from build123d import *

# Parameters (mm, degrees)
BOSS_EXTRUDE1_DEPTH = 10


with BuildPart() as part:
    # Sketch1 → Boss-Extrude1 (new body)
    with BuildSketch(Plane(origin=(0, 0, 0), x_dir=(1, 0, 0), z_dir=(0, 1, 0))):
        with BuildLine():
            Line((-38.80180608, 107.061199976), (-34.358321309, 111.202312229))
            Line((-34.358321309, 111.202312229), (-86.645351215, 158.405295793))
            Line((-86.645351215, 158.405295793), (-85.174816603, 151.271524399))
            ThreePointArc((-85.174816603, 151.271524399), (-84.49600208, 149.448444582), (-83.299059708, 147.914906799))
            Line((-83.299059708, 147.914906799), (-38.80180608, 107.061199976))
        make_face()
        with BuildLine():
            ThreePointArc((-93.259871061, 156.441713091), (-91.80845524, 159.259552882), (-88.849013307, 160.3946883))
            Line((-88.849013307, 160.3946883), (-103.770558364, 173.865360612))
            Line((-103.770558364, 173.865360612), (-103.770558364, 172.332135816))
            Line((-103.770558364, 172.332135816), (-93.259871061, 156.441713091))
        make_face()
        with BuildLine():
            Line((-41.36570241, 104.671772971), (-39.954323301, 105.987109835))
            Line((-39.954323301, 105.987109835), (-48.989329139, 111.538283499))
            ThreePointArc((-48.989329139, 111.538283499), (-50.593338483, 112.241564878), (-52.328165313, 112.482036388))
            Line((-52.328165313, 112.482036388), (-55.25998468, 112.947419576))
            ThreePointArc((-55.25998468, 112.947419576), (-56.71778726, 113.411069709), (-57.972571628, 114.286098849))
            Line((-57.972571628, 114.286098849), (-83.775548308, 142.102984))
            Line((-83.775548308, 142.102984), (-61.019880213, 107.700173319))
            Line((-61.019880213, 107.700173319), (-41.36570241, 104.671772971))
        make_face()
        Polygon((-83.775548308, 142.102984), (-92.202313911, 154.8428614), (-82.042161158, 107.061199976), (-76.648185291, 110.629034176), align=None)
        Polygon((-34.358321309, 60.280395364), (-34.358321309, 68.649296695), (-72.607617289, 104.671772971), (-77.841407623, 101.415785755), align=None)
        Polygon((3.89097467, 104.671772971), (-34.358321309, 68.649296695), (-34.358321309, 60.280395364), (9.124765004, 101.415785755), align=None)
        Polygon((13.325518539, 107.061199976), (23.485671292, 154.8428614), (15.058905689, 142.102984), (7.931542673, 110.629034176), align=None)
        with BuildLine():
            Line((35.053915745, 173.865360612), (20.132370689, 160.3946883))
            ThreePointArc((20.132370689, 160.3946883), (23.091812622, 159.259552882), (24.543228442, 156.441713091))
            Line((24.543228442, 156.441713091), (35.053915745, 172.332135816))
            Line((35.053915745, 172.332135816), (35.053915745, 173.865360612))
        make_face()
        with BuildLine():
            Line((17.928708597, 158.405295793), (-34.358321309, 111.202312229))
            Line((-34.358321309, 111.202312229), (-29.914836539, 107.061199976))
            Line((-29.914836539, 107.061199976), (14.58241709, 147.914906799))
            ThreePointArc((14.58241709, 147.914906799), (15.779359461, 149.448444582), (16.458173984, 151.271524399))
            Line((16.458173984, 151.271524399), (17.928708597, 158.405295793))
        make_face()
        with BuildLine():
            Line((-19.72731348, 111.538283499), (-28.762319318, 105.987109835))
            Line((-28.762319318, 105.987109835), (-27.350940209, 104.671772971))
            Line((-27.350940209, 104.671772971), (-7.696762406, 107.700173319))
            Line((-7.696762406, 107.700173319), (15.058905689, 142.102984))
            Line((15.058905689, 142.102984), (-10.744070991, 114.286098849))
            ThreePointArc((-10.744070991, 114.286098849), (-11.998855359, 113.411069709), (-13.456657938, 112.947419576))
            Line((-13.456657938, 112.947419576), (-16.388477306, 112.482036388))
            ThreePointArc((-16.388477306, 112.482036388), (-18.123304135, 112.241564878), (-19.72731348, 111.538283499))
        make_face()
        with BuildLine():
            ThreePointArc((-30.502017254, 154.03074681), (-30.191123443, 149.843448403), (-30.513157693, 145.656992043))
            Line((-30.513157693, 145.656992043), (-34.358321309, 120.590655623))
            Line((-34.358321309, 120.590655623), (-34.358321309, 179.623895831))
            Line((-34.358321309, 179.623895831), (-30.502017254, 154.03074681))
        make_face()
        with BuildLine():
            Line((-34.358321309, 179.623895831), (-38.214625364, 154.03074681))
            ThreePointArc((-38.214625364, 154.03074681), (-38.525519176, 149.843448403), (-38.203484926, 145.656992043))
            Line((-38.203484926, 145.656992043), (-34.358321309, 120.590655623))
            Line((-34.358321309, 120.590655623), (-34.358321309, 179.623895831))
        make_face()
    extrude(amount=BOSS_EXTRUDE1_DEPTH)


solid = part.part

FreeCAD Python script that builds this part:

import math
import FreeCAD as App
import Part
import Sketcher

V = App.Vector
Q = App.Units.Quantity


def add_polygon(sketch, points):
    """Adds a closed chain of lines whose ends are joined by coincident constraints."""
    first, n = sketch.GeometryCount, len(points)
    for a, b in zip(points, points[1:] + points[:1]):
        sketch.addGeometry(Part.LineSegment(App.Vector(*a, 0), App.Vector(*b, 0)), False)
    for i in range(n):
        sketch.addConstraint(Sketcher.Constraint("Coincident", first + i, 2, first + (i + 1) % n, 1))

doc = App.newDocument("Part")
body = doc.addObject("PartDesign::Body", "Body")
body.AllowCompound = True

sketch1 = doc.addObject("Sketcher::SketchObject", "Sketch")
body.addObject(sketch1)
sketch1.AttachmentSupport = (doc.XZ_Plane, [""])
sketch1.MapMode = "FlatFace"
sketch1.addGeometry(Part.LineSegment(V(-38.801806, -107.0612, 0), V(-34.358321, -111.202312, 0)), False)
sketch1.addGeometry(Part.LineSegment(V(-34.358321, -111.202312, 0), V(-86.645351, -158.405296, 0)), False)
sketch1.addGeometry(Part.LineSegment(V(-86.645351, -158.405296, 0), V(-85.174817, -151.271524, 0)), False)
sketch1.addGeometry(Part.ArcOfCircle(Part.Circle(V(-78.930128, -152.558786, 0), V(0, 0, 1), 6.375985), math.radians(133.252661), math.radians(168.352367)), False)
sketch1.addGeometry(Part.LineSegment(V(-83.29906, -147.914907, 0), V(-38.801806, -107.0612, 0)), False)
sketch1.addGeometry(Part.ArcOfCircle(Part.Circle(V(-88.840974, -155.948341, 0), V(0, 0, 1), 4.446354), math.radians(-173.629287), math.radians(-90.103592)), False)
sketch1.addGeometry(Part.LineSegment(V(-88.849013, -160.394688, 0), V(-103.770558, -173.865361, 0)), False)
sketch1.addGeometry(Part.LineSegment(V(-103.770558, -173.865361, 0), V(-103.770558, -172.332136, 0)), False)
sketch1.addGeometry(Part.LineSegment(V(-103.770558, -172.332136, 0), V(-93.259871, -156.441713, 0)), False)
sketch1.addGeometry(Part.LineSegment(V(-41.365702, -104.671773, 0), V(-39.954323, -105.98711, 0)), False)
sketch1.addGeometry(Part.LineSegment(V(-39.954323, -105.98711, 0), V(-48.989329, -111.538283, 0)), False)
sketch1.addGeometry(Part.ArcOfCircle(Part.Circle(V(-52.328165, -106.104045, 0), V(0, 0, 1), 6.377992), math.radians(-90), math.radians(-58.43313)), False)
sketch1.addGeometry(Part.LineSegment(V(-52.328165, -112.482036, 0), V(-55.259985, -112.94742, 0)), False)
sketch1.addGeometry(Part.ArcOfCircle(Part.Circle(V(-54.460258, -117.985538, 0), V(0, 0, 1), 5.101196), math.radians(99.019609), math.radians(133.513668)), False)
sketch1.addGeometry(Part.LineSegment(V(-57.972572, -114.286099, 0), V(-83.775548, -142.102984, 0)), False)
sketch1.addGeometry(Part.LineSegment(V(-83.775548, -142.102984, 0), V(-61.01988, -107.700173, 0)), False)
sketch1.addGeometry(Part.LineSegment(V(-61.01988, -107.700173, 0), V(-41.365702, -104.671773, 0)), False)
add_polygon(sketch1, [(-83.775548, -142.102984), (-92.202314, -154.842861), (-82.042161, -107.0612), (-76.648185, -110.629034)])
add_polygon(sketch1, [(-34.358321, -68.649297), (-72.607617, -104.671773), (-77.841408, -101.415786), (-34.358321, -60.280395), (9.124765, -101.415786), (3.890975, -104.671773)])
add_polygon(sketch1, [(13.325519, -107.0612), (23.485671, -154.842861), (15.058906, -142.102984), (7.931543, -110.629034)])
sketch1.addGeometry(Part.LineSegment(V(35.053916, -173.865361, 0), V(20.132371, -160.394688, 0)), False)
sketch1.addGeometry(Part.ArcOfCircle(Part.Circle(V(20.124332, -155.948341, 0), V(0, 0, 1), 4.446354), math.radians(-89.896408), math.radians(-6.370713)), False)
sketch1.addGeometry(Part.LineSegment(V(24.543228, -156.441713, 0), V(35.053916, -172.332136, 0)), False)
sketch1.addGeometry(Part.LineSegment(V(35.053916, -172.332136, 0), V(35.053916, -173.865361, 0)), False)
sketch1.addGeometry(Part.LineSegment(V(17.928709, -158.405296, 0), V(-34.358321, -111.202312, 0)), False)
sketch1.addGeometry(Part.LineSegment(V(-34.358321, -111.202312, 0), V(-29.914837, -107.0612, 0)), False)
sketch1.addGeometry(Part.LineSegment(V(-29.914837, -107.0612, 0), V(14.582417, -147.914907, 0)), False)
sketch1.addGeometry(Part.ArcOfCircle(Part.Circle(V(10.213485, -152.558786, 0), V(0, 0, 1), 6.375985), math.radians(11.647633), math.radians(46.747339)), False)
sketch1.addGeometry(Part.LineSegment(V(16.458174, -151.271524, 0), V(17.928709, -158.405296, 0)), False)
sketch1.addGeometry(Part.LineSegment(V(-19.727313, -111.538283, 0), V(-28.762319, -105.98711, 0)), False)
sketch1.addGeometry(Part.LineSegment(V(-28.762319, -105.98711, 0), V(-27.35094, -104.671773, 0)), False)
sketch1.addGeometry(Part.LineSegment(V(-27.35094, -104.671773, 0), V(-7.696762, -107.700173, 0)), False)
sketch1.addGeometry(Part.LineSegment(V(-7.696762, -107.700173, 0), V(15.058906, -142.102984, 0)), False)
sketch1.addGeometry(Part.LineSegment(V(15.058906, -142.102984, 0), V(-10.744071, -114.286099, 0)), False)
sketch1.addGeometry(Part.ArcOfCircle(Part.Circle(V(-14.256385, -117.985538, 0), V(0, 0, 1), 5.101196), math.radians(46.486332), math.radians(80.980391)), False)
sketch1.addGeometry(Part.LineSegment(V(-13.456658, -112.94742, 0), V(-16.388477, -112.482036, 0)), False)
sketch1.addGeometry(Part.ArcOfCircle(Part.Circle(V(-16.388477, -106.104045, 0), V(0, 0, 1), 6.377992), math.radians(-121.56687), math.radians(-90)), False)
sketch1.addGeometry(Part.ArcOfCircle(Part.Circle(V(-58.045935, -149.880506, 0), V(0, 0, 1), 27.854836), math.radians(-8.568709), math.radians(8.721161)), False)
sketch1.addGeometry(Part.LineSegment(V(-30.502017, -154.030747, 0), V(-34.358321, -179.623896, 0)), False)
sketch1.addGeometry(Part.LineSegment(V(-34.358321, -179.623896, 0), V(-38.214625, -154.030747, 0)), False)
sketch1.addGeometry(Part.ArcOfCircle(Part.Circle(V(-10.670708, -149.880506, 0), V(0, 0, 1), 27.854836), math.radians(171.278839), math.radians(188.568709)), False)
sketch1.addGeometry(Part.LineSegment(V(-38.203485, -145.656992, 0), V(-34.358321, -120.590656, 0)), False)
sketch1.addGeometry(Part.LineSegment(V(-34.358321, -120.590656, 0), V(-30.513158, -145.656992, 0)), False)
sketch1.addConstraint([
    Sketcher.Constraint("Coincident", 0, 2, 1, 1),
    Sketcher.Constraint("Coincident", 1, 2, 2, 1),
    Sketcher.Constraint("Tangent", 2, 2, 3, 2),
    Sketcher.Constraint("Coincident", 3, 1, 4, 1),
    Sketcher.Constraint("Coincident", 4, 2, 0, 1),
    Sketcher.Constraint("Coincident", 5, 2, 6, 1),
    Sketcher.Constraint("Coincident", 6, 2, 7, 1),
    Sketcher.Constraint("Coincident", 7, 2, 8, 1),
    Sketcher.Constraint("Coincident", 8, 2, 5, 1),
    Sketcher.Constraint("Coincident", 9, 2, 10, 1),
    Sketcher.Constraint("Tangent", 10, 2, 11, 2),
    Sketcher.Constraint("Coincident", 11, 1, 12, 1),
    Sketcher.Constraint("Tangent", 12, 2, 13, 1),
    Sketcher.Constraint("Coincident", 13, 2, 14, 1),
    Sketcher.Constraint("Coincident", 14, 2, 15, 1),
    Sketcher.Constraint("Coincident", 15, 2, 16, 1),
    Sketcher.Constraint("Coincident", 16, 2, 9, 1),
    Sketcher.Constraint("Coincident", 31, 2, 32, 1),
    Sketcher.Constraint("Coincident", 32, 2, 33, 1),
    Sketcher.Constraint("Coincident", 33, 2, 34, 1),
    Sketcher.Constraint("Coincident", 34, 2, 31, 1),
    Sketcher.Constraint("Coincident", 35, 2, 36, 1),
    Sketcher.Constraint("Coincident", 36, 2, 37, 1),
    Sketcher.Constraint("Coincident", 37, 2, 38, 2),
    Sketcher.Constraint("Tangent", 38, 1, 39, 1),
    Sketcher.Constraint("Coincident", 39, 2, 35, 1),
    Sketcher.Constraint("Coincident", 40, 2, 41, 1),
    Sketcher.Constraint("Coincident", 41, 2, 42, 1),
    Sketcher.Constraint("Coincident", 42, 2, 43, 1),
    Sketcher.Constraint("Coincident", 43, 2, 44, 1),
    Sketcher.Constraint("Coincident", 44, 2, 45, 1),
    Sketcher.Constraint("Tangent", 45, 2, 46, 1),
    Sketcher.Constraint("Coincident", 46, 2, 47, 2),
    Sketcher.Constraint("Tangent", 47, 1, 40, 1),
    Sketcher.Constraint("Tangent", 48, 1, 49, 1),
    Sketcher.Constraint("Coincident", 49, 2, 50, 1),
    Sketcher.Constraint("Tangent", 50, 2, 51, 2),
    Sketcher.Constraint("Tangent", 51, 1, 52, 1),
    Sketcher.Constraint("Coincident", 52, 2, 53, 1),
    Sketcher.Constraint("Tangent", 53, 2, 48, 2),
    Sketcher.Constraint("Vertical", 7),
    Sketcher.Constraint("Vertical", 34),
    Sketcher.Constraint("Coincident", 20, 2, 14, 2),
    Sketcher.Constraint("Coincident", 35, 2, 0, 2),
    Sketcher.Constraint("Coincident", 43, 2, 28, 2),
    Sketcher.Constraint("Equal", 5, 32),
    Sketcher.Constraint("Equal", 3, 38),
    Sketcher.Constraint("Equal", 13, 45),
    Sketcher.Constraint("Equal", 11, 47),
    Sketcher.Constraint("Equal", 48, 51),
    Sketcher.Constraint("Parallel", 1, 6),
    Sketcher.Constraint("Parallel", 0, 9),
    Sketcher.Constraint("Parallel", 8, 15),
    Sketcher.Constraint("Parallel", 15, 17),
    Sketcher.Constraint("Perpendicular", 17, 19),
    Sketcher.Constraint("Perpendicular", 28, 30),
    Sketcher.Constraint("Perpendicular", 30, 33),
    Sketcher.Constraint("Parallel", 31, 35),
    Sketcher.Constraint("Parallel", 36, 41),
    Sketcher.Constraint("Parallel", 33, 43),
    Sketcher.Constraint("Horizontal", 5, 3, 32, 3),
    Sketcher.Constraint("Horizontal", 3, 3, 38, 3),
    Sketcher.Constraint("Horizontal", 13, 3, 45, 3),
    Sketcher.Constraint("Horizontal", 11, 3, 47, 3),
    Sketcher.Constraint("Horizontal", 48, 3, 51, 3),
    Sketcher.Constraint("Horizontal", 4, 2, 18, 2),
    Sketcher.Constraint("Horizontal", 16, 2, 21, 2),
    Sketcher.Constraint("Horizontal", 22, 2, 24, 2),
    Sketcher.Constraint("Horizontal", 21, 2, 25, 2),
    Sketcher.Constraint("Horizontal", 17, 2, 27, 2),
    Sketcher.Constraint("Horizontal", 20, 2, 28, 2),
    Sketcher.Constraint("Horizontal", 19, 2, 29, 2),
    Sketcher.Constraint("Horizontal", 18, 2, 30, 2),
    Sketcher.Constraint("Horizontal", 8, 2, 32, 2),
    Sketcher.Constraint("Horizontal", 7, 2, 33, 2),
    Sketcher.Constraint("Horizontal", 6, 2, 34, 2),
    Sketcher.Constraint("Horizontal", 30, 2, 36, 2),
    Sketcher.Constraint("Horizontal", 3, 1, 37, 2),
    Sketcher.Constraint("Horizontal", 2, 2, 38, 1),
    Sketcher.Constraint("Horizontal", 1, 2, 39, 2),
    Sketcher.Constraint("Horizontal", 9, 2, 40, 2),
    Sketcher.Constraint("Horizontal", 25, 2, 41, 2),
    Sketcher.Constraint("Horizontal", 15, 2, 42, 2),
    Sketcher.Constraint("Horizontal", 13, 2, 44, 2),
    Sketcher.Constraint("Horizontal", 12, 2, 45, 2),
    Sketcher.Constraint("Horizontal", 10, 2, 47, 1),
    Sketcher.Constraint("Horizontal", 48, 1, 50, 2),
    Sketcher.Constraint("Horizontal", 51, 1, 53, 2),
    Sketcher.Constraint("Vertical", 0, 2, 23, 2),
    Sketcher.Constraint("Vertical", 23, 2, 26, 2),
    Sketcher.Constraint("Vertical", 47, 3, 46, 2),
    Sketcher.Constraint("Vertical", 35, 2, 49, 2),
    Sketcher.Constraint("Equal", 23, 24),
    Sketcher.Constraint("Equal", 22, 25),
    Sketcher.Constraint("Equal", 18, 27),
    Sketcher.Constraint("Equal", 17, 28),
    Sketcher.Constraint("Equal", 6, 31),
    Sketcher.Constraint("Equal", 0, 36),
    Sketcher.Constraint("Equal", 16, 42),
    Sketcher.Constraint("Equal", 14, 44),
    Sketcher.Constraint("Radius", 11, Q("6.377992 mm")),
    Sketcher.Constraint("Radius", 3, Q("6.375985 mm")),
    Sketcher.Constraint("Radius", 5, Q("4.446354 mm")),
    Sketcher.Constraint("Radius", 13, Q("5.101196 mm")),
    Sketcher.Constraint("Radius", 48, Q("27.854836 mm")),
    Sketcher.Constraint("Distance", 14, Q("37.941701 mm")),
    Sketcher.Constraint("DistanceY", 4, 2, -1, 1, Q("107.0612 mm")),
    Sketcher.Constraint("DistanceY", 13, 2, -1, 1, Q("114.286099 mm")),
    Sketcher.Constraint("Distance", 0, Q("6.073991 mm")),
    Sketcher.Constraint("Distance", 2, Q("7.28376 mm")),
    Sketcher.Constraint("Distance", 4, Q("60.407209 mm")),
    Sketcher.Constraint("Distance", 19, Q("6.46718 mm")),
    Sketcher.Constraint("Distance", 22, Q("6.163928 mm")),
    Sketcher.Constraint("DistanceY", 7, 1, 7, 2, Q("1.533225 mm")),
    Sketcher.Constraint("DistanceY", 5, 3, -1, 1, Q("155.948341 mm")),
    Sketcher.Constraint("DistanceX", -1, 1, 32, 3, Q("20.124332 mm")),
    Sketcher.Constraint("DistanceX", 0, 2, -1, 1, Q("34.358321 mm")),
    Sketcher.Constraint("DistanceX", 1, 2, -1, 1, Q("86.645351 mm")),
    Sketcher.Constraint("DistanceX", 3, 1, -1, 1, Q("83.29906 mm")),
    Sketcher.Constraint("DistanceX", 6, 2, -1, 1, Q("103.770558 mm")),
    Sketcher.Constraint("DistanceY", 6, 2, -1, 1, Q("173.865361 mm")),
    Sketcher.Constraint("DistanceX", 8, 2, -1, 1, Q("93.259871 mm")),
    Sketcher.Constraint("DistanceY", 9, 2, -1, 1, Q("105.98711 mm")),
    Sketcher.Constraint("DistanceX", 10, 2, -1, 1, Q("48.989329 mm")),
    Sketcher.Constraint("DistanceY", 12, 2, -1, 1, Q("112.94742 mm")),
    Sketcher.Constraint("DistanceX", 13, 2, -1, 1, Q("57.972572 mm")),
    Sketcher.Constraint("DistanceX", 14, 2, -1, 1, Q("83.775548 mm")),
    Sketcher.Constraint("DistanceX", 15, 2, -1, 1, Q("61.01988 mm")),
    Sketcher.Constraint("DistanceY", 17, 2, -1, 1, Q("154.842861 mm")),
    Sketcher.Constraint("DistanceX", 18, 2, -1, 1, Q("82.042161 mm")),
    Sketcher.Constraint("DistanceX", -1, 1, 27, 2, Q("23.485671 mm")),
    Sketcher.Constraint("DistanceX", -1, 1, 30, 2, Q("13.325519 mm")),
    Sketcher.Constraint("DistanceX", -1, 1, 31, 2, Q("20.132371 mm")),
    Sketcher.Constraint("DistanceX", 40, 2, -1, 1, Q("28.762319 mm")),
    Sketcher.Constraint("DistanceX", 41, 2, -1, 1, Q("27.35094 mm")),
    Sketcher.Constraint("Distance", 9, Q("1.929275 mm")),
    Sketcher.Constraint("Distance", 10, Q("10.604096 mm")),
    Sketcher.Constraint("Distance", 21, Q("52.541673 mm")),
    Sketcher.Constraint("Distance", 23, Q("59.857323 mm")),
    Sketcher.Constraint("Distance", 49, Q("25.882047 mm")),
    Sketcher.Constraint("Distance", 52, Q("25.359545 mm")),
    Sketcher.Constraint("DistanceX", 48, 3, -1, 1, Q("58.045935 mm")),
    Sketcher.Constraint("DistanceY", 48, 3, -1, 1, Q("149.880506 mm")),
    Sketcher.Constraint("DistanceX", 21, 2, -1, 1, Q("72.607617 mm")),
    Sketcher.Constraint("DistanceX", 22, 2, -1, 1, Q("77.841408 mm")),
])
pad1 = doc.addObject("PartDesign::Pad", "Pad")
body.addObject(pad1)
pad1.Profile = sketch1
pad1.Length = 10
pad1.Reversed = True

doc.recompute()
